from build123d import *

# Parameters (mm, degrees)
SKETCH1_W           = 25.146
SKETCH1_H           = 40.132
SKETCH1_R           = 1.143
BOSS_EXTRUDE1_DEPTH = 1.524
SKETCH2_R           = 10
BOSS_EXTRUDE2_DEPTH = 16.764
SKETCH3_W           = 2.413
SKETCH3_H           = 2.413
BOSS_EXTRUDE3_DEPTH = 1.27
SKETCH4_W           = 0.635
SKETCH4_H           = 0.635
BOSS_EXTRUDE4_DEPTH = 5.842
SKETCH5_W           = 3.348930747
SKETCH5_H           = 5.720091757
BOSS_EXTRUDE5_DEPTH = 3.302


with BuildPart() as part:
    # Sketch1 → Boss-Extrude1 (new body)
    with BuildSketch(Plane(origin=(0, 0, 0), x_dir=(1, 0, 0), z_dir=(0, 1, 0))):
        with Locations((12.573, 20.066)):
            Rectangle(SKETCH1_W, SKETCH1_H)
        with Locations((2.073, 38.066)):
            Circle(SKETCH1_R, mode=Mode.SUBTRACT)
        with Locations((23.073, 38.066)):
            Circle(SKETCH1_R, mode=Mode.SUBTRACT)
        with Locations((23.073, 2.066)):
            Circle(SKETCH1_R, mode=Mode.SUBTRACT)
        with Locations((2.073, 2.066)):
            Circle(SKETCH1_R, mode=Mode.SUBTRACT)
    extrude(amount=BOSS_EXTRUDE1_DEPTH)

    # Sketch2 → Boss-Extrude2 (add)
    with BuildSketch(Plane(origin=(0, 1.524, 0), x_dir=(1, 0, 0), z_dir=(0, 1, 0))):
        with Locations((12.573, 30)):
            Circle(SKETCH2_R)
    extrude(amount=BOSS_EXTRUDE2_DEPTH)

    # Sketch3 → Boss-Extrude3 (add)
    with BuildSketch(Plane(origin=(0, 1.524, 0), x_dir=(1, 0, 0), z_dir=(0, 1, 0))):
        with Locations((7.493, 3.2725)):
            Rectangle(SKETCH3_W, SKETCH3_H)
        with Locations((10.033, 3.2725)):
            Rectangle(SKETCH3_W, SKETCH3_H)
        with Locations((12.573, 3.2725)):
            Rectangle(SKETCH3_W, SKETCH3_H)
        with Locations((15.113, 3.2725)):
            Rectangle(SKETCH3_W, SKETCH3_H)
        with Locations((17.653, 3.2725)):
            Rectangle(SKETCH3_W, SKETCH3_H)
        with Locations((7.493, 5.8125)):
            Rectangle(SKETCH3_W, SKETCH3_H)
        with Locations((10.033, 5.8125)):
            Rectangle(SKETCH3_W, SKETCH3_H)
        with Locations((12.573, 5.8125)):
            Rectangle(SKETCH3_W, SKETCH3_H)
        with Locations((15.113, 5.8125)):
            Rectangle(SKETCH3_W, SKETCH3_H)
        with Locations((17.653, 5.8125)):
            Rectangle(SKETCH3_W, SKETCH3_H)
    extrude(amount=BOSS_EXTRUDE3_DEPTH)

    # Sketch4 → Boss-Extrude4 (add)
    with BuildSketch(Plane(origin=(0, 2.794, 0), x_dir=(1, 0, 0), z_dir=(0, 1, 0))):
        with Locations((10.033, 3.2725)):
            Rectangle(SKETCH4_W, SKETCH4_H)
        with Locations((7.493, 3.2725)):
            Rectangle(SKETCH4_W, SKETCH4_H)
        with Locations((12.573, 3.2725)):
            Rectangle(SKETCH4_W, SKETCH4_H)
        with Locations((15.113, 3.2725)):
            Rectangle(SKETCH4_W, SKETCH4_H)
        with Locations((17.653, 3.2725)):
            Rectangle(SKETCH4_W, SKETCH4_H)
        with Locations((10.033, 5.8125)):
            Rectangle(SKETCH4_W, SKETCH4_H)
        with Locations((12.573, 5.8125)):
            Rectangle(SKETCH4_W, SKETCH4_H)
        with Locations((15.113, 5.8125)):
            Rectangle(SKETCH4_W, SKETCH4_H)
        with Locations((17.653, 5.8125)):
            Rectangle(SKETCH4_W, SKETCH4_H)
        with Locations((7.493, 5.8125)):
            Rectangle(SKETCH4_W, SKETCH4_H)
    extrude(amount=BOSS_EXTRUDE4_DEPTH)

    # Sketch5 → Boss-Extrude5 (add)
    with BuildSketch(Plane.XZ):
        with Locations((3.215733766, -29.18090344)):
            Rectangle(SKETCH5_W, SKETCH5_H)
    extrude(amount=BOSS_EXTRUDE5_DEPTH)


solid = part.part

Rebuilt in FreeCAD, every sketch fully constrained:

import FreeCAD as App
import Part
import Sketcher
Q = App.Units.Quantity


def add_polygon(sketch, points):
    """Adds a closed chain of lines whose ends are joined by coincident constraints."""
    first, n = sketch.GeometryCount, len(points)
    for a, b in zip(points, points[1:] + points[:1]):
        sketch.addGeometry(Part.LineSegment(App.Vector(*a, 0), App.Vector(*b, 0)), False)
    for i in range(n):
        sketch.addConstraint(Sketcher.Constraint("Coincident", first + i, 2, first + (i + 1) % n, 1))

doc = App.newDocument("Part")
params = doc.addObject("Spreadsheet::Sheet", "Params")
for row, (alias, value) in enumerate([
    ("sketch1_diameter", "0.09 in"),
    ("sketch1_width", "0.99 in"),
    ("sketch1_height", "1.58 in"),
    ("pad1_length", "0.06 in"),
    ("pad2_length", "0.66 in"),
    ("sketch3_width", "0.095 in"),
    ("pad3_length", "0.05 in"),
    ("sketch4_width", "0.025 in"),
    ("pad4_length", "0.23 in"),
    ("pad5_length", "0.13 in"),
], start=1):
    params.set(f"A{row}", alias)
    params.set(f"B{row}", "=" + value)
    params.setAlias(f"B{row}", alias)

body = doc.addObject("PartDesign::Body", "Body")

# Sketch on XZ plane
sketch1 = doc.addObject("Sketcher::SketchObject", "Sketch")
body.addObject(sketch1)
sketch1.AttachmentSupport = (doc.XZ_Plane, [""])
sketch1.MapMode = "FlatFace"
add_polygon(sketch1, [(0, -40.1), (0, 0), (25.1, 0), (25.1, -40.1)])  # lines 0-3
sketch1.addGeometry(Part.Circle(App.Vector(2.1, -2.1, 0), App.Vector(0, 0, 1), 1.1), False)  # 4
sketch1.addGeometry(Part.Circle(App.Vector(23.1, -2.1, 0), App.Vector(0, 0, 1), 1.1), False)  # 5
sketch1.addGeometry(Part.Circle(App.Vector(2.1, -38.1, 0), App.Vector(0, 0, 1), 1.1), False)  # 6
sketch1.addGeometry(Part.Circle(App.Vector(23.1, -38.1, 0), App.Vector(0, 0, 1), 1.1), False)  # 7
sketch1.addConstraint([
    Sketcher.Constraint("Vertical", 0),
    Sketcher.Constraint("Horizontal", 1),
    Sketcher.Constraint("Vertical", 2),
    Sketcher.Constraint("Horizontal", 3),
    Sketcher.Constraint("Coincident", 0, 2, -1, 1),
    Sketcher.Constraint("Equal", 4, 5),
    Sketcher.Constraint("Equal", 5, 6),
    Sketcher.Constraint("Equal", 6, 7),
    Sketcher.Constraint("Horizontal", 4, 3, 5, 3),
    Sketcher.Constraint("Horizontal", 6, 3, 7, 3),
    Sketcher.Constraint("Vertical", 4, 3, 6, 3),
    Sketcher.Constraint("Vertical", 5, 3, 7, 3),
    Sketcher.Constraint("Diameter", 4, Q("0.09 in")),
    Sketcher.Constraint("DistanceX", 1, 1, 1, 2, Q("0.99 in")),
    Sketcher.Constraint("DistanceY", 0, 1, 0, 2, Q("1.58 in")),
    Sketcher.Constraint("DistanceX", -1, 1, 4, 3, Q("2.073 mm")),
    Sketcher.Constraint("DistanceY", 4, 3, -1, 1, Q("2.066 mm")),
    Sketcher.Constraint("DistanceX", -1, 1, 5, 3, Q("23.073 mm")),
    Sketcher.Constraint("DistanceY", 6, 3, -1, 1, Q("38.066 mm")),
])
sketch1.setExpression("Constraints[16]", "Params.sketch1_diameter")
sketch1.setExpression("Constraints[17]", "Params.sketch1_width")
sketch1.setExpression("Constraints[18]", "Params.sketch1_height")
pad1 = doc.addObject("PartDesign::Pad", "Pad")
body.addObject(pad1)
pad1.Profile = sketch1
pad1.setExpression("Length", "Params.pad1_length")
pad1.Reversed = True

# Sketch on XZ plane
sketch2 = doc.addObject("Sketcher::SketchObject", "Sketch001")
body.addObject(sketch2)
sketch2.AttachmentSupport = (doc.XZ_Plane, [""])
sketch2.MapMode = "FlatFace"
sketch2.AttachmentOffset = App.Placement(App.Vector(0, 0, -0.06 * 25.4), App.Rotation())
sketch2.addGeometry(Part.Circle(App.Vector(13, -30, 0), App.Vector(0, 0, 1), 10), False)
sketch2.addConstraint([
    Sketcher.Constraint("Diameter", 0, Q("20 mm")),
    Sketcher.Constraint("DistanceX", -1, 1, 0, 3, Q("0.495 in")),
    Sketcher.Constraint("DistanceY", 0, 3, -1, 1, Q("30 mm")),
])
pad2 = doc.addObject("PartDesign::Pad", "Pad001")
body.addObject(pad2)
pad2.Profile = sketch2
pad2.setExpression("Length", "Params.pad2_length")
pad2.Reversed = True

# Sketch on XZ plane
sketch3 = doc.addObject("Sketcher::SketchObject", "Sketch002")
body.addObject(sketch3)
sketch3.AttachmentSupport = (doc.XZ_Plane, [""])
sketch3.MapMode = "FlatFace"
sketch3.AttachmentOffset = App.Placement(App.Vector(0, 0, -0.06 * 25.4), App.Rotation())
add_polygon(sketch3, [(6.3, -4.5), (6.3, -2.1), (8.7, -2.1), (8.7, -4.5)])  # lines 0-3
add_polygon(sketch3, [(8.8, -4.5), (8.8, -2.1), (11.2, -2.1), (11.2, -4.5)])  # lines 4-7
add_polygon(sketch3, [(11.4, -4.5), (11.4, -2.1), (13.8, -2.1), (13.8, -4.5)])  # lines 8-11
add_polygon(sketch3, [(13.9, -4.5), (13.9, -2.1), (16.3, -2.1), (16.3, -4.5)])  # lines 12-15
add_polygon(sketch3, [(16.4, -4.5), (16.4, -2.1), (18.9, -2.1), (18.9, -4.5)])  # lines 16-19
add_polygon(sketch3, [(6.3, -7), (6.3, -4.6), (8.7, -4.6), (8.7, -7)])  # lines 20-23
add_polygon(sketch3, [(8.8, -7), (8.8, -4.6), (11.2, -4.6), (11.2, -7)])  # lines 24-27
add_polygon(sketch3, [(11.4, -7), (11.4, -4.6), (13.8, -4.6), (13.8, -7)])  # lines 28-31
add_polygon(sketch3, [(13.9, -7), (13.9, -4.6), (16.3, -4.6), (16.3, -7)])  # lines 32-35
add_polygon(sketch3, [(16.4, -7), (16.4, -4.6), (18.9, -4.6), (18.9, -7)])  # lines 36-39
sketch3.addConstraint([
    Sketcher.Constraint("Vertical", 0),
    Sketcher.Constraint("Horizontal", 1),
    Sketcher.Constraint("Vertical", 2),
    Sketcher.Constraint("Horizontal", 3),
    Sketcher.Constraint("Vertical", 4),
    Sketcher.Constraint("Horizontal", 5),
    Sketcher.Constraint("Vertical", 6),
    Sketcher.Constraint("Horizontal", 7),
    Sketcher.Constraint("Vertical", 8),
    Sketcher.Constraint("Horizontal", 9),
    Sketcher.Constraint("Vertical", 10),
    Sketcher.Constraint("Horizontal", 11),
    Sketcher.Constraint("Vertical", 12),
    Sketcher.Constraint("Horizontal", 13),
    Sketcher.Constraint("Vertical", 14),
    Sketcher.Constraint("Horizontal", 15),
    Sketcher.Constraint("Vertical", 16),
    Sketcher.Constraint("Horizontal", 17),
    Sketcher.Constraint("Vertical", 18),
    Sketcher.Constraint("Horizontal", 19),
    Sketcher.Constraint("Vertical", 20),
    Sketcher.Constraint("Horizontal", 21),
    Sketcher.Constraint("Vertical", 22),
    Sketcher.Constraint("Horizontal", 23),
    Sketcher.Constraint("Vertical", 24),
    Sketcher.Constraint("Horizontal", 25),
    Sketcher.Constraint("Vertical", 26),
    Sketcher.Constraint("Horizontal", 27),
    Sketcher.Constraint("Vertical", 28),
    Sketcher.Constraint("Horizontal", 29),
    Sketcher.Constraint("Vertical", 30),
    Sketcher.Constraint("Horizontal", 31),
    Sketcher.Constraint("Vertical", 32),
    Sketcher.Constraint("Horizontal", 33),
    Sketcher.Constraint("Vertical", 34),
    Sketcher.Constraint("Horizontal", 35),
    Sketcher.Constraint("Vertical", 36),
    Sketcher.Constraint("Horizontal", 37),
    Sketcher.Constraint("Vertical", 38),
    Sketcher.Constraint("Horizontal", 39),
    Sketcher.Constraint("Horizontal", 1, 2, 4, 2),
    Sketcher.Constraint("Horizontal", 3, 2, 6, 2),
    Sketcher.Constraint("Horizontal", 5, 2, 8, 2),
    Sketcher.Constraint("Horizontal", 7, 2, 10, 2),
    Sketcher.Constraint("Horizontal", 9, 2, 12, 2),
    Sketcher.Constraint("Horizontal", 11, 2, 14, 2),
    Sketcher.Constraint("Horizontal", 13, 2, 16, 2),
    Sketcher.Constraint("Horizontal", 15, 2, 18, 2),
    Sketcher.Constraint("Horizontal", 21, 2, 24, 2),
    Sketcher.Constraint("Horizontal", 23, 2, 26, 2),
    Sketcher.Constraint("Horizontal", 25, 2, 28, 2),
    Sketcher.Constraint("Horizontal", 27, 2, 30, 2),
    Sketcher.Constraint("Horizontal", 29, 2, 32, 2),
    Sketcher.Constraint("Horizontal", 31, 2, 34, 2),
    Sketcher.Constraint("Horizontal", 33, 2, 36, 2),
    Sketcher.Constraint("Horizontal", 35, 2, 38, 2),
    Sketcher.Constraint("Vertical", 3, 2, 20, 2),
    Sketcher.Constraint("Vertical", 2, 2, 21, 2),
    Sketcher.Constraint("Vertical", 7, 2, 24, 2),
    Sketcher.Constraint("Vertical", 6, 2, 25, 2),
    Sketcher.Constraint("Vertical", 11, 2, 28, 2),
    Sketcher.Constraint("Vertical", 10, 2, 29, 2),
    Sketcher.Constraint("Vertical", 15, 2, 32, 2),
    Sketcher.Constraint("Vertical", 14, 2, 33, 2),
    Sketcher.Constraint("Vertical", 19, 2, 36, 2),
    Sketcher.Constraint("Vertical", 18, 2, 37, 2),
    Sketcher.Constraint("Equal", 3, 5),
    Sketcher.Constraint("Equal", 7, 9),
    Sketcher.Constraint("Equal", 11, 13),
    Sketcher.Constraint("Equal", 15, 17),
    Sketcher.Constraint("Equal", 39, 0),
    Sketcher.Constraint("Equal", 18, 20),
    Sketcher.Constraint("DistanceX", 0, 2, 4, 2, Q("0.1 in")),
    Sketcher.Constraint("DistanceX", 4, 2, 8, 2, Q("0.1 in")),
    Sketcher.Constraint("DistanceX", 8, 2, 12, 2, Q("0.1 in")),
    Sketcher.Constraint("DistanceX", 12, 2, 16, 2, Q("0.1 in")),
    Sketcher.Constraint("DistanceY", 20, 2, 0, 2, Q("0.1 in")),
    Sketcher.Constraint("DistanceX", 1, 1, 1, 2, Q("0.095 in")),
    Sketcher.Constraint("DistanceX", -1, 1, 0, 2, Q("0.2475 in")),
    Sketcher.Constraint("DistanceY", 0, 2, -1, 1, Q("2.066 mm")),
])
sketch3.setExpression("Constraints[117]", "Params.sketch3_width")
pad3 = doc.addObject("PartDesign::Pad", "Pad002")
body.addObject(pad3)
pad3.Profile = sketch3
pad3.setExpression("Length", "Params.pad3_length")
pad3.Reversed = True

# Sketch on XZ plane
sketch4 = doc.addObject("Sketcher::SketchObject", "Sketch003")
body.addObject(sketch4)
sketch4.AttachmentSupport = (doc.XZ_Plane, [""])
sketch4.MapMode = "FlatFace"
sketch4.AttachmentOffset = App.Placement(App.Vector(0, 0, -0.11 * 25.4), App.Rotation())
add_polygon(sketch4, [(9.7, -3.6), (9.7, -3), (10.4, -3), (10.4, -3.6)])  # lines 0-3
add_polygon(sketch4, [(7.2, -3.6), (7.2, -3), (7.8, -3), (7.8, -3.6)])  # lines 4-7
add_polygon(sketch4, [(12.3, -3.6), (12.3, -3), (12.9, -3), (12.9, -3.6)])  # lines 8-11
add_polygon(sketch4, [(14.8, -3.6), (14.8, -3), (15.4, -3), (15.4, -3.6)])  # lines 12-15
add_polygon(sketch4, [(17.3, -3.6), (17.3, -3), (18, -3), (18, -3.6)])  # lines 16-19
add_polygon(sketch4, [(9.7, -6.1), (9.7, -5.5), (10.4, -5.5), (10.4, -6.1)])  # lines 20-23
add_polygon(sketch4, [(12.3, -6.1), (12.3, -5.5), (12.9, -5.5), (12.9, -6.1)])  # lines 24-27
add_polygon(sketch4, [(14.8, -6.1), (14.8, -5.5), (15.4, -5.5), (15.4, -6.1)])  # lines 28-31
add_polygon(sketch4, [(17.3, -6.1), (17.3, -5.5), (18, -5.5), (18, -6.1)])  # lines 32-35
add_polygon(sketch4, [(7.2, -6.1), (7.2, -5.5), (7.8, -5.5), (7.8, -6.1)])  # lines 36-39
sketch4.addConstraint([
    Sketcher.Constraint("Vertical", 0),
    Sketcher.Constraint("Horizontal", 1),
    Sketcher.Constraint("Vertical", 2),
    Sketcher.Constraint("Horizontal", 3),
    Sketcher.Constraint("Vertical", 4),
    Sketcher.Constraint("Horizontal", 5),
    Sketcher.Constraint("Vertical", 6),
    Sketcher.Constraint("Horizontal", 7),
    Sketcher.Constraint("Vertical", 8),
    Sketcher.Constraint("Horizontal", 9),
    Sketcher.Constraint("Vertical", 10),
    Sketcher.Constraint("Horizontal", 11),
    Sketcher.Constraint("Vertical", 12),
    Sketcher.Constraint("Horizontal", 13),
    Sketcher.Constraint("Vertical", 14),
    Sketcher.Constraint("Horizontal", 15),
    Sketcher.Constraint("Vertical", 16),
    Sketcher.Constraint("Horizontal", 17),
    Sketcher.Constraint("Vertical", 18),
    Sketcher.Constraint("Horizontal", 19),
    Sketcher.Constraint("Vertical", 20),
    Sketcher.Constraint("Horizontal", 21),
    Sketcher.Constraint("Vertical", 22),
    Sketcher.Constraint("Horizontal", 23),
    Sketcher.Constraint("Vertical", 24),
    Sketcher.Constraint("Horizontal", 25),
    Sketcher.Constraint("Vertical", 26),
    Sketcher.Constraint("Horizontal", 27),
    Sketcher.Constraint("Vertical", 28),
    Sketcher.Constraint("Horizontal", 29),
    Sketcher.Constraint("Vertical", 30),
    Sketcher.Constraint("Horizontal", 31),
    Sketcher.Constraint("Vertical", 32),
    Sketcher.Constraint("Horizontal", 33),
    Sketcher.Constraint("Vertical", 34),
    Sketcher.Constraint("Horizontal", 35),
    Sketcher.Constraint("Vertical", 36),
    Sketcher.Constraint("Horizontal", 37),
    Sketcher.Constraint("Vertical", 38),
    Sketcher.Constraint("Horizontal", 39),
    Sketcher.Constraint("Horizontal", 1, 2, 4, 2),
    Sketcher.Constraint("Horizontal", 3, 2, 6, 2),
    Sketcher.Constraint("Horizontal", 5, 2, 8, 2),
    Sketcher.Constraint("Horizontal", 7, 2, 10, 2),
    Sketcher.Constraint("Horizontal", 9, 2, 12, 2),
    Sketcher.Constraint("Horizontal", 11, 2, 14, 2),
    Sketcher.Constraint("Horizontal", 13, 2, 16, 2),
    Sketcher.Constraint("Horizontal", 15, 2, 18, 2),
    Sketcher.Constraint("Horizontal", 21, 2, 24, 2),
    Sketcher.Constraint("Horizontal", 23, 2, 26, 2),
    Sketcher.Constraint("Horizontal", 25, 2, 28, 2),
    Sketcher.Constraint("Horizontal", 27, 2, 30, 2),
    Sketcher.Constraint("Horizontal", 29, 2, 32, 2),
    Sketcher.Constraint("Horizontal", 31, 2, 34, 2),
    Sketcher.Constraint("Horizontal", 33, 2, 36, 2),
    Sketcher.Constraint("Horizontal", 35, 2, 38, 2),
    Sketcher.Constraint("Vertical", 3, 2, 20, 2),
    Sketcher.Constraint("Vertical", 2, 2, 21, 2),
    Sketcher.Constraint("Vertical", 11, 2, 24, 2),
    Sketcher.Constraint("Vertical", 10, 2, 25, 2),
    Sketcher.Constraint("Vertical", 15, 2, 28, 2),
    Sketcher.Constraint("Vertical", 14, 2, 29, 2),
    Sketcher.Constraint("Vertical", 19, 2, 32, 2),
    Sketcher.Constraint("Vertical", 18, 2, 33, 2),
    Sketcher.Constraint("Vertical", 7, 2, 36, 2),
    Sketcher.Constraint("Vertical", 6, 2, 37, 2),
    Sketcher.Constraint("Equal", 3, 5),
    Sketcher.Constraint("Equal", 7, 9),
    Sketcher.Constraint("Equal", 11, 13),
    Sketcher.Constraint("Equal", 15, 17),
    Sketcher.Constraint("Equal", 39, 0),
    Sketcher.Constraint("Equal", 18, 20),
    Sketcher.Constraint("DistanceX", 4, 2, 0, 2, Q("0.1 in")),
    Sketcher.Constraint("DistanceX", 0, 2, 8, 2, Q("0.1 in")),
    Sketcher.Constraint("DistanceX", 8, 2, 12, 2, Q("0.1 in")),
    Sketcher.Constraint("DistanceX", 12, 2, 16, 2, Q("0.1 in")),
    Sketcher.Constraint("DistanceY", 20, 2, 0, 2, Q("0.1 in")),
    Sketcher.Constraint("DistanceX", 1, 1, 1, 2, Q("0.025 in")),
    Sketcher.Constraint("DistanceX", -1, 1, 0, 2, Q("0.3825 in")),
    Sketcher.Constraint("DistanceY", 0, 2, -1, 1, Q("2.955 mm")),
])
sketch4.setExpression("Constraints[117]", "Params.sketch4_width")
pad4 = doc.addObject("PartDesign::Pad", "Pad003")
body.addObject(pad4)
pad4.Profile = sketch4
pad4.setExpression("Length", "Params.pad4_length")
pad4.Reversed = True

# Sketch on XZ plane
sketch5 = doc.addObject("Sketcher::SketchObject", "Sketch004")
body.addObject(sketch5)
sketch5.AttachmentSupport = (doc.XZ_Plane, [""])
sketch5.MapMode = "FlatFace"
add_polygon(sketch5, [(1.5, -26.3), (1.5, -32), (4.9, -32), (4.9, -26.3)])  # lines 0-3
sketch5.addConstraint([
    Sketcher.Constraint("Vertical", 0),
    Sketcher.Constraint("Horizontal", 1),
    Sketcher.Constraint("Vertical", 2),
    Sketcher.Constraint("Horizontal", 3),
    Sketcher.Constraint("DistanceX", 1, 1, 1, 2, Q("3.348931 mm")),
    Sketcher.Constraint("DistanceY", 0, 2, 0, 1, Q("5.720092 mm")),
    Sketcher.Constraint("DistanceX", -1, 1, 1, 2, Q("4.890199 mm")),
    Sketcher.Constraint("DistanceY", 0, 2, -1, 1, Q("32.040949 mm")),
])
pad5 = doc.addObject("PartDesign::Pad", "Pad004")
body.addObject(pad5)
pad5.Profile = sketch5
pad5.setExpression("Length", "Params.pad5_length")

doc.recompute()
